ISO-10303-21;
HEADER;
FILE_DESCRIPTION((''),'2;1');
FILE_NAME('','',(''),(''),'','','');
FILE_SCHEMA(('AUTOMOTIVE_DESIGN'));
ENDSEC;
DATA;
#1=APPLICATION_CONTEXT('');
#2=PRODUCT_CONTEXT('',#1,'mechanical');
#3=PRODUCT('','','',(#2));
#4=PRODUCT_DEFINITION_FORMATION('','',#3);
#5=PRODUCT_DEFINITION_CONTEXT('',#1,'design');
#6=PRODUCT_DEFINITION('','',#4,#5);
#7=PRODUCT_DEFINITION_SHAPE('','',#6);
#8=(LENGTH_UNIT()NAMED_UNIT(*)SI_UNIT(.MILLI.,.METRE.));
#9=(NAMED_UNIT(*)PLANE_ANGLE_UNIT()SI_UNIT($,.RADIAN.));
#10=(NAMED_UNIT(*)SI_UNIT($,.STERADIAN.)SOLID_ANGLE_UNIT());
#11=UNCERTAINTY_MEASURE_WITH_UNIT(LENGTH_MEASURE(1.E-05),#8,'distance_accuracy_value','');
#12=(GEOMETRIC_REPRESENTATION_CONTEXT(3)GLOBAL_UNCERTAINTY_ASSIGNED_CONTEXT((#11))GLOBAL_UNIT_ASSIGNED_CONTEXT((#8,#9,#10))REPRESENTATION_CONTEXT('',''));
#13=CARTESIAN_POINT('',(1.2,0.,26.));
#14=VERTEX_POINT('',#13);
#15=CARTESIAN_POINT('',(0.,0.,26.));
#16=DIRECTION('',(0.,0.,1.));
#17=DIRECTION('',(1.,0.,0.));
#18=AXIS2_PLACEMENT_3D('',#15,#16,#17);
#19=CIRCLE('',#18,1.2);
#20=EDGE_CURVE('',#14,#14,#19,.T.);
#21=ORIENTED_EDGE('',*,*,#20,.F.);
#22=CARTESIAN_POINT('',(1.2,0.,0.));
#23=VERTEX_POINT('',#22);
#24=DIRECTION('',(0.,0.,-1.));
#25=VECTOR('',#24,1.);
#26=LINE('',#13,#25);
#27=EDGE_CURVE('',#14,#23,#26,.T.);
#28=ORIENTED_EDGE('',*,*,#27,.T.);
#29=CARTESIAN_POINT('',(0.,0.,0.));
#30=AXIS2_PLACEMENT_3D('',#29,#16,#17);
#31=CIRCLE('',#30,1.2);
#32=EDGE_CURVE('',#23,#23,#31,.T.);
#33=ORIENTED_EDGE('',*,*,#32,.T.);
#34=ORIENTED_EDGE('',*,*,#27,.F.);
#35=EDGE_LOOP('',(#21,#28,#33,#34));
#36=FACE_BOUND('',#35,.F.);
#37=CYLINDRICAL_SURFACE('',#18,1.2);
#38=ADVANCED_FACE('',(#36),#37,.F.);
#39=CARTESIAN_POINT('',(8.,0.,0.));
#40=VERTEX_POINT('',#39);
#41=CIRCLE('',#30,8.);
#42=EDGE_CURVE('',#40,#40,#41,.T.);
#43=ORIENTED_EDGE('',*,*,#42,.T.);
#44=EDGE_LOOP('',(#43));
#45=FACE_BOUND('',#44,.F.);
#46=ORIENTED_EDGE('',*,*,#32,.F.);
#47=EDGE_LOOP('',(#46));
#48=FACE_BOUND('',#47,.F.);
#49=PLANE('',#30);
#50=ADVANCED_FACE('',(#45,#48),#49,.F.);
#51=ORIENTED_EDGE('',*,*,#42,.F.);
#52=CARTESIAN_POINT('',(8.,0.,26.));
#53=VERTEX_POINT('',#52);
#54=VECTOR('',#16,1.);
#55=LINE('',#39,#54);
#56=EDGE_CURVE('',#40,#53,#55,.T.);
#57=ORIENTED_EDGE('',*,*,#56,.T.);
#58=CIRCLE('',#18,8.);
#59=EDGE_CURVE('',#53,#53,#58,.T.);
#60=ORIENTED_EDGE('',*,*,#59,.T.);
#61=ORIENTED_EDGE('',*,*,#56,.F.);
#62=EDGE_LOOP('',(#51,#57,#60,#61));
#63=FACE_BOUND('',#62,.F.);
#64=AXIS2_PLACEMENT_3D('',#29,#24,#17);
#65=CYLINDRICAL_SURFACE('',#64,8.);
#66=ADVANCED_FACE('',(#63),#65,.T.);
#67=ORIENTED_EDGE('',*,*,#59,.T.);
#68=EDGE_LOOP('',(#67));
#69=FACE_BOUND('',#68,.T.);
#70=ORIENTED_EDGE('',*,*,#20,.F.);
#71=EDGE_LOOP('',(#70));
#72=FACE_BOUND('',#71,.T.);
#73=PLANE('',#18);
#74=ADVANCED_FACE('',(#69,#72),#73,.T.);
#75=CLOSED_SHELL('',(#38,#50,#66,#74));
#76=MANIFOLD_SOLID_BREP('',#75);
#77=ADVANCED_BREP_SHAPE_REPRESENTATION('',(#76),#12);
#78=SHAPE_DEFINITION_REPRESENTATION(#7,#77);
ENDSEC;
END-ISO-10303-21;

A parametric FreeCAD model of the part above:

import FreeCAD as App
import Part
import Sketcher

V = App.Vector

doc = App.newDocument("Part")
params = doc.addObject("Spreadsheet::Sheet", "Params")
for row, (alias, value) in enumerate([
    ("sketch1_diameter", "16 mm"),
    ("pad1_length", "26 mm"),
    ("sketch2_diameter", "2.4 mm"),
    ("pocket1_length", "35 mm"),
], start=1):
    params.set(f"A{row}", alias)
    params.set(f"B{row}", "=" + value)
    params.setAlias(f"B{row}", alias)

body = doc.addObject("PartDesign::Body", "Body")

sketch1 = doc.addObject("Sketcher::SketchObject", "Sketch")
body.addObject(sketch1)
sketch1.AttachmentSupport = (doc.XY_Plane, [""])
sketch1.MapMode = "FlatFace"
sketch1.addGeometry(Part.Circle(V(0, 0, 0), V(0, 0, 1), 8), False)
sketch1.addConstraint(Sketcher.Constraint("Coincident", 0, 3, -1, 1))
sketch1.addConstraint(Sketcher.Constraint("Diameter", 0, 16.0))
sketch1.setExpression("Constraints[1]", "Params.sketch1_diameter")
pad1 = doc.addObject("PartDesign::Pad", "Pad")
body.addObject(pad1)
pad1.Profile = sketch1
pad1.setExpression("Length", "Params.pad1_length")

sketch2 = doc.addObject("Sketcher::SketchObject", "Sketch001")
body.addObject(sketch2)
sketch2.AttachmentSupport = (doc.XY_Plane, [""])
sketch2.MapMode = "FlatFace"
sketch2.AttachmentOffset = App.Placement(V(0, 0, 26), App.Rotation())
sketch2.addGeometry(Part.Circle(V(0, 0, 0), V(0, 0, 1), 1.2), False)
sketch2.addConstraint(Sketcher.Constraint("Coincident", 0, 3, -1, 1))
sketch2.addConstraint(Sketcher.Constraint("Diameter", 0, 2.4))
sketch2.setExpression("Constraints[1]", "Params.sketch2_diameter")
pocket1 = doc.addObject("PartDesign::Pocket", "Pocket")
body.addObject(pocket1)
pocket1.Profile = sketch2
pocket1.setExpression("Length", "Params.pocket1_length")

doc.recompute()
